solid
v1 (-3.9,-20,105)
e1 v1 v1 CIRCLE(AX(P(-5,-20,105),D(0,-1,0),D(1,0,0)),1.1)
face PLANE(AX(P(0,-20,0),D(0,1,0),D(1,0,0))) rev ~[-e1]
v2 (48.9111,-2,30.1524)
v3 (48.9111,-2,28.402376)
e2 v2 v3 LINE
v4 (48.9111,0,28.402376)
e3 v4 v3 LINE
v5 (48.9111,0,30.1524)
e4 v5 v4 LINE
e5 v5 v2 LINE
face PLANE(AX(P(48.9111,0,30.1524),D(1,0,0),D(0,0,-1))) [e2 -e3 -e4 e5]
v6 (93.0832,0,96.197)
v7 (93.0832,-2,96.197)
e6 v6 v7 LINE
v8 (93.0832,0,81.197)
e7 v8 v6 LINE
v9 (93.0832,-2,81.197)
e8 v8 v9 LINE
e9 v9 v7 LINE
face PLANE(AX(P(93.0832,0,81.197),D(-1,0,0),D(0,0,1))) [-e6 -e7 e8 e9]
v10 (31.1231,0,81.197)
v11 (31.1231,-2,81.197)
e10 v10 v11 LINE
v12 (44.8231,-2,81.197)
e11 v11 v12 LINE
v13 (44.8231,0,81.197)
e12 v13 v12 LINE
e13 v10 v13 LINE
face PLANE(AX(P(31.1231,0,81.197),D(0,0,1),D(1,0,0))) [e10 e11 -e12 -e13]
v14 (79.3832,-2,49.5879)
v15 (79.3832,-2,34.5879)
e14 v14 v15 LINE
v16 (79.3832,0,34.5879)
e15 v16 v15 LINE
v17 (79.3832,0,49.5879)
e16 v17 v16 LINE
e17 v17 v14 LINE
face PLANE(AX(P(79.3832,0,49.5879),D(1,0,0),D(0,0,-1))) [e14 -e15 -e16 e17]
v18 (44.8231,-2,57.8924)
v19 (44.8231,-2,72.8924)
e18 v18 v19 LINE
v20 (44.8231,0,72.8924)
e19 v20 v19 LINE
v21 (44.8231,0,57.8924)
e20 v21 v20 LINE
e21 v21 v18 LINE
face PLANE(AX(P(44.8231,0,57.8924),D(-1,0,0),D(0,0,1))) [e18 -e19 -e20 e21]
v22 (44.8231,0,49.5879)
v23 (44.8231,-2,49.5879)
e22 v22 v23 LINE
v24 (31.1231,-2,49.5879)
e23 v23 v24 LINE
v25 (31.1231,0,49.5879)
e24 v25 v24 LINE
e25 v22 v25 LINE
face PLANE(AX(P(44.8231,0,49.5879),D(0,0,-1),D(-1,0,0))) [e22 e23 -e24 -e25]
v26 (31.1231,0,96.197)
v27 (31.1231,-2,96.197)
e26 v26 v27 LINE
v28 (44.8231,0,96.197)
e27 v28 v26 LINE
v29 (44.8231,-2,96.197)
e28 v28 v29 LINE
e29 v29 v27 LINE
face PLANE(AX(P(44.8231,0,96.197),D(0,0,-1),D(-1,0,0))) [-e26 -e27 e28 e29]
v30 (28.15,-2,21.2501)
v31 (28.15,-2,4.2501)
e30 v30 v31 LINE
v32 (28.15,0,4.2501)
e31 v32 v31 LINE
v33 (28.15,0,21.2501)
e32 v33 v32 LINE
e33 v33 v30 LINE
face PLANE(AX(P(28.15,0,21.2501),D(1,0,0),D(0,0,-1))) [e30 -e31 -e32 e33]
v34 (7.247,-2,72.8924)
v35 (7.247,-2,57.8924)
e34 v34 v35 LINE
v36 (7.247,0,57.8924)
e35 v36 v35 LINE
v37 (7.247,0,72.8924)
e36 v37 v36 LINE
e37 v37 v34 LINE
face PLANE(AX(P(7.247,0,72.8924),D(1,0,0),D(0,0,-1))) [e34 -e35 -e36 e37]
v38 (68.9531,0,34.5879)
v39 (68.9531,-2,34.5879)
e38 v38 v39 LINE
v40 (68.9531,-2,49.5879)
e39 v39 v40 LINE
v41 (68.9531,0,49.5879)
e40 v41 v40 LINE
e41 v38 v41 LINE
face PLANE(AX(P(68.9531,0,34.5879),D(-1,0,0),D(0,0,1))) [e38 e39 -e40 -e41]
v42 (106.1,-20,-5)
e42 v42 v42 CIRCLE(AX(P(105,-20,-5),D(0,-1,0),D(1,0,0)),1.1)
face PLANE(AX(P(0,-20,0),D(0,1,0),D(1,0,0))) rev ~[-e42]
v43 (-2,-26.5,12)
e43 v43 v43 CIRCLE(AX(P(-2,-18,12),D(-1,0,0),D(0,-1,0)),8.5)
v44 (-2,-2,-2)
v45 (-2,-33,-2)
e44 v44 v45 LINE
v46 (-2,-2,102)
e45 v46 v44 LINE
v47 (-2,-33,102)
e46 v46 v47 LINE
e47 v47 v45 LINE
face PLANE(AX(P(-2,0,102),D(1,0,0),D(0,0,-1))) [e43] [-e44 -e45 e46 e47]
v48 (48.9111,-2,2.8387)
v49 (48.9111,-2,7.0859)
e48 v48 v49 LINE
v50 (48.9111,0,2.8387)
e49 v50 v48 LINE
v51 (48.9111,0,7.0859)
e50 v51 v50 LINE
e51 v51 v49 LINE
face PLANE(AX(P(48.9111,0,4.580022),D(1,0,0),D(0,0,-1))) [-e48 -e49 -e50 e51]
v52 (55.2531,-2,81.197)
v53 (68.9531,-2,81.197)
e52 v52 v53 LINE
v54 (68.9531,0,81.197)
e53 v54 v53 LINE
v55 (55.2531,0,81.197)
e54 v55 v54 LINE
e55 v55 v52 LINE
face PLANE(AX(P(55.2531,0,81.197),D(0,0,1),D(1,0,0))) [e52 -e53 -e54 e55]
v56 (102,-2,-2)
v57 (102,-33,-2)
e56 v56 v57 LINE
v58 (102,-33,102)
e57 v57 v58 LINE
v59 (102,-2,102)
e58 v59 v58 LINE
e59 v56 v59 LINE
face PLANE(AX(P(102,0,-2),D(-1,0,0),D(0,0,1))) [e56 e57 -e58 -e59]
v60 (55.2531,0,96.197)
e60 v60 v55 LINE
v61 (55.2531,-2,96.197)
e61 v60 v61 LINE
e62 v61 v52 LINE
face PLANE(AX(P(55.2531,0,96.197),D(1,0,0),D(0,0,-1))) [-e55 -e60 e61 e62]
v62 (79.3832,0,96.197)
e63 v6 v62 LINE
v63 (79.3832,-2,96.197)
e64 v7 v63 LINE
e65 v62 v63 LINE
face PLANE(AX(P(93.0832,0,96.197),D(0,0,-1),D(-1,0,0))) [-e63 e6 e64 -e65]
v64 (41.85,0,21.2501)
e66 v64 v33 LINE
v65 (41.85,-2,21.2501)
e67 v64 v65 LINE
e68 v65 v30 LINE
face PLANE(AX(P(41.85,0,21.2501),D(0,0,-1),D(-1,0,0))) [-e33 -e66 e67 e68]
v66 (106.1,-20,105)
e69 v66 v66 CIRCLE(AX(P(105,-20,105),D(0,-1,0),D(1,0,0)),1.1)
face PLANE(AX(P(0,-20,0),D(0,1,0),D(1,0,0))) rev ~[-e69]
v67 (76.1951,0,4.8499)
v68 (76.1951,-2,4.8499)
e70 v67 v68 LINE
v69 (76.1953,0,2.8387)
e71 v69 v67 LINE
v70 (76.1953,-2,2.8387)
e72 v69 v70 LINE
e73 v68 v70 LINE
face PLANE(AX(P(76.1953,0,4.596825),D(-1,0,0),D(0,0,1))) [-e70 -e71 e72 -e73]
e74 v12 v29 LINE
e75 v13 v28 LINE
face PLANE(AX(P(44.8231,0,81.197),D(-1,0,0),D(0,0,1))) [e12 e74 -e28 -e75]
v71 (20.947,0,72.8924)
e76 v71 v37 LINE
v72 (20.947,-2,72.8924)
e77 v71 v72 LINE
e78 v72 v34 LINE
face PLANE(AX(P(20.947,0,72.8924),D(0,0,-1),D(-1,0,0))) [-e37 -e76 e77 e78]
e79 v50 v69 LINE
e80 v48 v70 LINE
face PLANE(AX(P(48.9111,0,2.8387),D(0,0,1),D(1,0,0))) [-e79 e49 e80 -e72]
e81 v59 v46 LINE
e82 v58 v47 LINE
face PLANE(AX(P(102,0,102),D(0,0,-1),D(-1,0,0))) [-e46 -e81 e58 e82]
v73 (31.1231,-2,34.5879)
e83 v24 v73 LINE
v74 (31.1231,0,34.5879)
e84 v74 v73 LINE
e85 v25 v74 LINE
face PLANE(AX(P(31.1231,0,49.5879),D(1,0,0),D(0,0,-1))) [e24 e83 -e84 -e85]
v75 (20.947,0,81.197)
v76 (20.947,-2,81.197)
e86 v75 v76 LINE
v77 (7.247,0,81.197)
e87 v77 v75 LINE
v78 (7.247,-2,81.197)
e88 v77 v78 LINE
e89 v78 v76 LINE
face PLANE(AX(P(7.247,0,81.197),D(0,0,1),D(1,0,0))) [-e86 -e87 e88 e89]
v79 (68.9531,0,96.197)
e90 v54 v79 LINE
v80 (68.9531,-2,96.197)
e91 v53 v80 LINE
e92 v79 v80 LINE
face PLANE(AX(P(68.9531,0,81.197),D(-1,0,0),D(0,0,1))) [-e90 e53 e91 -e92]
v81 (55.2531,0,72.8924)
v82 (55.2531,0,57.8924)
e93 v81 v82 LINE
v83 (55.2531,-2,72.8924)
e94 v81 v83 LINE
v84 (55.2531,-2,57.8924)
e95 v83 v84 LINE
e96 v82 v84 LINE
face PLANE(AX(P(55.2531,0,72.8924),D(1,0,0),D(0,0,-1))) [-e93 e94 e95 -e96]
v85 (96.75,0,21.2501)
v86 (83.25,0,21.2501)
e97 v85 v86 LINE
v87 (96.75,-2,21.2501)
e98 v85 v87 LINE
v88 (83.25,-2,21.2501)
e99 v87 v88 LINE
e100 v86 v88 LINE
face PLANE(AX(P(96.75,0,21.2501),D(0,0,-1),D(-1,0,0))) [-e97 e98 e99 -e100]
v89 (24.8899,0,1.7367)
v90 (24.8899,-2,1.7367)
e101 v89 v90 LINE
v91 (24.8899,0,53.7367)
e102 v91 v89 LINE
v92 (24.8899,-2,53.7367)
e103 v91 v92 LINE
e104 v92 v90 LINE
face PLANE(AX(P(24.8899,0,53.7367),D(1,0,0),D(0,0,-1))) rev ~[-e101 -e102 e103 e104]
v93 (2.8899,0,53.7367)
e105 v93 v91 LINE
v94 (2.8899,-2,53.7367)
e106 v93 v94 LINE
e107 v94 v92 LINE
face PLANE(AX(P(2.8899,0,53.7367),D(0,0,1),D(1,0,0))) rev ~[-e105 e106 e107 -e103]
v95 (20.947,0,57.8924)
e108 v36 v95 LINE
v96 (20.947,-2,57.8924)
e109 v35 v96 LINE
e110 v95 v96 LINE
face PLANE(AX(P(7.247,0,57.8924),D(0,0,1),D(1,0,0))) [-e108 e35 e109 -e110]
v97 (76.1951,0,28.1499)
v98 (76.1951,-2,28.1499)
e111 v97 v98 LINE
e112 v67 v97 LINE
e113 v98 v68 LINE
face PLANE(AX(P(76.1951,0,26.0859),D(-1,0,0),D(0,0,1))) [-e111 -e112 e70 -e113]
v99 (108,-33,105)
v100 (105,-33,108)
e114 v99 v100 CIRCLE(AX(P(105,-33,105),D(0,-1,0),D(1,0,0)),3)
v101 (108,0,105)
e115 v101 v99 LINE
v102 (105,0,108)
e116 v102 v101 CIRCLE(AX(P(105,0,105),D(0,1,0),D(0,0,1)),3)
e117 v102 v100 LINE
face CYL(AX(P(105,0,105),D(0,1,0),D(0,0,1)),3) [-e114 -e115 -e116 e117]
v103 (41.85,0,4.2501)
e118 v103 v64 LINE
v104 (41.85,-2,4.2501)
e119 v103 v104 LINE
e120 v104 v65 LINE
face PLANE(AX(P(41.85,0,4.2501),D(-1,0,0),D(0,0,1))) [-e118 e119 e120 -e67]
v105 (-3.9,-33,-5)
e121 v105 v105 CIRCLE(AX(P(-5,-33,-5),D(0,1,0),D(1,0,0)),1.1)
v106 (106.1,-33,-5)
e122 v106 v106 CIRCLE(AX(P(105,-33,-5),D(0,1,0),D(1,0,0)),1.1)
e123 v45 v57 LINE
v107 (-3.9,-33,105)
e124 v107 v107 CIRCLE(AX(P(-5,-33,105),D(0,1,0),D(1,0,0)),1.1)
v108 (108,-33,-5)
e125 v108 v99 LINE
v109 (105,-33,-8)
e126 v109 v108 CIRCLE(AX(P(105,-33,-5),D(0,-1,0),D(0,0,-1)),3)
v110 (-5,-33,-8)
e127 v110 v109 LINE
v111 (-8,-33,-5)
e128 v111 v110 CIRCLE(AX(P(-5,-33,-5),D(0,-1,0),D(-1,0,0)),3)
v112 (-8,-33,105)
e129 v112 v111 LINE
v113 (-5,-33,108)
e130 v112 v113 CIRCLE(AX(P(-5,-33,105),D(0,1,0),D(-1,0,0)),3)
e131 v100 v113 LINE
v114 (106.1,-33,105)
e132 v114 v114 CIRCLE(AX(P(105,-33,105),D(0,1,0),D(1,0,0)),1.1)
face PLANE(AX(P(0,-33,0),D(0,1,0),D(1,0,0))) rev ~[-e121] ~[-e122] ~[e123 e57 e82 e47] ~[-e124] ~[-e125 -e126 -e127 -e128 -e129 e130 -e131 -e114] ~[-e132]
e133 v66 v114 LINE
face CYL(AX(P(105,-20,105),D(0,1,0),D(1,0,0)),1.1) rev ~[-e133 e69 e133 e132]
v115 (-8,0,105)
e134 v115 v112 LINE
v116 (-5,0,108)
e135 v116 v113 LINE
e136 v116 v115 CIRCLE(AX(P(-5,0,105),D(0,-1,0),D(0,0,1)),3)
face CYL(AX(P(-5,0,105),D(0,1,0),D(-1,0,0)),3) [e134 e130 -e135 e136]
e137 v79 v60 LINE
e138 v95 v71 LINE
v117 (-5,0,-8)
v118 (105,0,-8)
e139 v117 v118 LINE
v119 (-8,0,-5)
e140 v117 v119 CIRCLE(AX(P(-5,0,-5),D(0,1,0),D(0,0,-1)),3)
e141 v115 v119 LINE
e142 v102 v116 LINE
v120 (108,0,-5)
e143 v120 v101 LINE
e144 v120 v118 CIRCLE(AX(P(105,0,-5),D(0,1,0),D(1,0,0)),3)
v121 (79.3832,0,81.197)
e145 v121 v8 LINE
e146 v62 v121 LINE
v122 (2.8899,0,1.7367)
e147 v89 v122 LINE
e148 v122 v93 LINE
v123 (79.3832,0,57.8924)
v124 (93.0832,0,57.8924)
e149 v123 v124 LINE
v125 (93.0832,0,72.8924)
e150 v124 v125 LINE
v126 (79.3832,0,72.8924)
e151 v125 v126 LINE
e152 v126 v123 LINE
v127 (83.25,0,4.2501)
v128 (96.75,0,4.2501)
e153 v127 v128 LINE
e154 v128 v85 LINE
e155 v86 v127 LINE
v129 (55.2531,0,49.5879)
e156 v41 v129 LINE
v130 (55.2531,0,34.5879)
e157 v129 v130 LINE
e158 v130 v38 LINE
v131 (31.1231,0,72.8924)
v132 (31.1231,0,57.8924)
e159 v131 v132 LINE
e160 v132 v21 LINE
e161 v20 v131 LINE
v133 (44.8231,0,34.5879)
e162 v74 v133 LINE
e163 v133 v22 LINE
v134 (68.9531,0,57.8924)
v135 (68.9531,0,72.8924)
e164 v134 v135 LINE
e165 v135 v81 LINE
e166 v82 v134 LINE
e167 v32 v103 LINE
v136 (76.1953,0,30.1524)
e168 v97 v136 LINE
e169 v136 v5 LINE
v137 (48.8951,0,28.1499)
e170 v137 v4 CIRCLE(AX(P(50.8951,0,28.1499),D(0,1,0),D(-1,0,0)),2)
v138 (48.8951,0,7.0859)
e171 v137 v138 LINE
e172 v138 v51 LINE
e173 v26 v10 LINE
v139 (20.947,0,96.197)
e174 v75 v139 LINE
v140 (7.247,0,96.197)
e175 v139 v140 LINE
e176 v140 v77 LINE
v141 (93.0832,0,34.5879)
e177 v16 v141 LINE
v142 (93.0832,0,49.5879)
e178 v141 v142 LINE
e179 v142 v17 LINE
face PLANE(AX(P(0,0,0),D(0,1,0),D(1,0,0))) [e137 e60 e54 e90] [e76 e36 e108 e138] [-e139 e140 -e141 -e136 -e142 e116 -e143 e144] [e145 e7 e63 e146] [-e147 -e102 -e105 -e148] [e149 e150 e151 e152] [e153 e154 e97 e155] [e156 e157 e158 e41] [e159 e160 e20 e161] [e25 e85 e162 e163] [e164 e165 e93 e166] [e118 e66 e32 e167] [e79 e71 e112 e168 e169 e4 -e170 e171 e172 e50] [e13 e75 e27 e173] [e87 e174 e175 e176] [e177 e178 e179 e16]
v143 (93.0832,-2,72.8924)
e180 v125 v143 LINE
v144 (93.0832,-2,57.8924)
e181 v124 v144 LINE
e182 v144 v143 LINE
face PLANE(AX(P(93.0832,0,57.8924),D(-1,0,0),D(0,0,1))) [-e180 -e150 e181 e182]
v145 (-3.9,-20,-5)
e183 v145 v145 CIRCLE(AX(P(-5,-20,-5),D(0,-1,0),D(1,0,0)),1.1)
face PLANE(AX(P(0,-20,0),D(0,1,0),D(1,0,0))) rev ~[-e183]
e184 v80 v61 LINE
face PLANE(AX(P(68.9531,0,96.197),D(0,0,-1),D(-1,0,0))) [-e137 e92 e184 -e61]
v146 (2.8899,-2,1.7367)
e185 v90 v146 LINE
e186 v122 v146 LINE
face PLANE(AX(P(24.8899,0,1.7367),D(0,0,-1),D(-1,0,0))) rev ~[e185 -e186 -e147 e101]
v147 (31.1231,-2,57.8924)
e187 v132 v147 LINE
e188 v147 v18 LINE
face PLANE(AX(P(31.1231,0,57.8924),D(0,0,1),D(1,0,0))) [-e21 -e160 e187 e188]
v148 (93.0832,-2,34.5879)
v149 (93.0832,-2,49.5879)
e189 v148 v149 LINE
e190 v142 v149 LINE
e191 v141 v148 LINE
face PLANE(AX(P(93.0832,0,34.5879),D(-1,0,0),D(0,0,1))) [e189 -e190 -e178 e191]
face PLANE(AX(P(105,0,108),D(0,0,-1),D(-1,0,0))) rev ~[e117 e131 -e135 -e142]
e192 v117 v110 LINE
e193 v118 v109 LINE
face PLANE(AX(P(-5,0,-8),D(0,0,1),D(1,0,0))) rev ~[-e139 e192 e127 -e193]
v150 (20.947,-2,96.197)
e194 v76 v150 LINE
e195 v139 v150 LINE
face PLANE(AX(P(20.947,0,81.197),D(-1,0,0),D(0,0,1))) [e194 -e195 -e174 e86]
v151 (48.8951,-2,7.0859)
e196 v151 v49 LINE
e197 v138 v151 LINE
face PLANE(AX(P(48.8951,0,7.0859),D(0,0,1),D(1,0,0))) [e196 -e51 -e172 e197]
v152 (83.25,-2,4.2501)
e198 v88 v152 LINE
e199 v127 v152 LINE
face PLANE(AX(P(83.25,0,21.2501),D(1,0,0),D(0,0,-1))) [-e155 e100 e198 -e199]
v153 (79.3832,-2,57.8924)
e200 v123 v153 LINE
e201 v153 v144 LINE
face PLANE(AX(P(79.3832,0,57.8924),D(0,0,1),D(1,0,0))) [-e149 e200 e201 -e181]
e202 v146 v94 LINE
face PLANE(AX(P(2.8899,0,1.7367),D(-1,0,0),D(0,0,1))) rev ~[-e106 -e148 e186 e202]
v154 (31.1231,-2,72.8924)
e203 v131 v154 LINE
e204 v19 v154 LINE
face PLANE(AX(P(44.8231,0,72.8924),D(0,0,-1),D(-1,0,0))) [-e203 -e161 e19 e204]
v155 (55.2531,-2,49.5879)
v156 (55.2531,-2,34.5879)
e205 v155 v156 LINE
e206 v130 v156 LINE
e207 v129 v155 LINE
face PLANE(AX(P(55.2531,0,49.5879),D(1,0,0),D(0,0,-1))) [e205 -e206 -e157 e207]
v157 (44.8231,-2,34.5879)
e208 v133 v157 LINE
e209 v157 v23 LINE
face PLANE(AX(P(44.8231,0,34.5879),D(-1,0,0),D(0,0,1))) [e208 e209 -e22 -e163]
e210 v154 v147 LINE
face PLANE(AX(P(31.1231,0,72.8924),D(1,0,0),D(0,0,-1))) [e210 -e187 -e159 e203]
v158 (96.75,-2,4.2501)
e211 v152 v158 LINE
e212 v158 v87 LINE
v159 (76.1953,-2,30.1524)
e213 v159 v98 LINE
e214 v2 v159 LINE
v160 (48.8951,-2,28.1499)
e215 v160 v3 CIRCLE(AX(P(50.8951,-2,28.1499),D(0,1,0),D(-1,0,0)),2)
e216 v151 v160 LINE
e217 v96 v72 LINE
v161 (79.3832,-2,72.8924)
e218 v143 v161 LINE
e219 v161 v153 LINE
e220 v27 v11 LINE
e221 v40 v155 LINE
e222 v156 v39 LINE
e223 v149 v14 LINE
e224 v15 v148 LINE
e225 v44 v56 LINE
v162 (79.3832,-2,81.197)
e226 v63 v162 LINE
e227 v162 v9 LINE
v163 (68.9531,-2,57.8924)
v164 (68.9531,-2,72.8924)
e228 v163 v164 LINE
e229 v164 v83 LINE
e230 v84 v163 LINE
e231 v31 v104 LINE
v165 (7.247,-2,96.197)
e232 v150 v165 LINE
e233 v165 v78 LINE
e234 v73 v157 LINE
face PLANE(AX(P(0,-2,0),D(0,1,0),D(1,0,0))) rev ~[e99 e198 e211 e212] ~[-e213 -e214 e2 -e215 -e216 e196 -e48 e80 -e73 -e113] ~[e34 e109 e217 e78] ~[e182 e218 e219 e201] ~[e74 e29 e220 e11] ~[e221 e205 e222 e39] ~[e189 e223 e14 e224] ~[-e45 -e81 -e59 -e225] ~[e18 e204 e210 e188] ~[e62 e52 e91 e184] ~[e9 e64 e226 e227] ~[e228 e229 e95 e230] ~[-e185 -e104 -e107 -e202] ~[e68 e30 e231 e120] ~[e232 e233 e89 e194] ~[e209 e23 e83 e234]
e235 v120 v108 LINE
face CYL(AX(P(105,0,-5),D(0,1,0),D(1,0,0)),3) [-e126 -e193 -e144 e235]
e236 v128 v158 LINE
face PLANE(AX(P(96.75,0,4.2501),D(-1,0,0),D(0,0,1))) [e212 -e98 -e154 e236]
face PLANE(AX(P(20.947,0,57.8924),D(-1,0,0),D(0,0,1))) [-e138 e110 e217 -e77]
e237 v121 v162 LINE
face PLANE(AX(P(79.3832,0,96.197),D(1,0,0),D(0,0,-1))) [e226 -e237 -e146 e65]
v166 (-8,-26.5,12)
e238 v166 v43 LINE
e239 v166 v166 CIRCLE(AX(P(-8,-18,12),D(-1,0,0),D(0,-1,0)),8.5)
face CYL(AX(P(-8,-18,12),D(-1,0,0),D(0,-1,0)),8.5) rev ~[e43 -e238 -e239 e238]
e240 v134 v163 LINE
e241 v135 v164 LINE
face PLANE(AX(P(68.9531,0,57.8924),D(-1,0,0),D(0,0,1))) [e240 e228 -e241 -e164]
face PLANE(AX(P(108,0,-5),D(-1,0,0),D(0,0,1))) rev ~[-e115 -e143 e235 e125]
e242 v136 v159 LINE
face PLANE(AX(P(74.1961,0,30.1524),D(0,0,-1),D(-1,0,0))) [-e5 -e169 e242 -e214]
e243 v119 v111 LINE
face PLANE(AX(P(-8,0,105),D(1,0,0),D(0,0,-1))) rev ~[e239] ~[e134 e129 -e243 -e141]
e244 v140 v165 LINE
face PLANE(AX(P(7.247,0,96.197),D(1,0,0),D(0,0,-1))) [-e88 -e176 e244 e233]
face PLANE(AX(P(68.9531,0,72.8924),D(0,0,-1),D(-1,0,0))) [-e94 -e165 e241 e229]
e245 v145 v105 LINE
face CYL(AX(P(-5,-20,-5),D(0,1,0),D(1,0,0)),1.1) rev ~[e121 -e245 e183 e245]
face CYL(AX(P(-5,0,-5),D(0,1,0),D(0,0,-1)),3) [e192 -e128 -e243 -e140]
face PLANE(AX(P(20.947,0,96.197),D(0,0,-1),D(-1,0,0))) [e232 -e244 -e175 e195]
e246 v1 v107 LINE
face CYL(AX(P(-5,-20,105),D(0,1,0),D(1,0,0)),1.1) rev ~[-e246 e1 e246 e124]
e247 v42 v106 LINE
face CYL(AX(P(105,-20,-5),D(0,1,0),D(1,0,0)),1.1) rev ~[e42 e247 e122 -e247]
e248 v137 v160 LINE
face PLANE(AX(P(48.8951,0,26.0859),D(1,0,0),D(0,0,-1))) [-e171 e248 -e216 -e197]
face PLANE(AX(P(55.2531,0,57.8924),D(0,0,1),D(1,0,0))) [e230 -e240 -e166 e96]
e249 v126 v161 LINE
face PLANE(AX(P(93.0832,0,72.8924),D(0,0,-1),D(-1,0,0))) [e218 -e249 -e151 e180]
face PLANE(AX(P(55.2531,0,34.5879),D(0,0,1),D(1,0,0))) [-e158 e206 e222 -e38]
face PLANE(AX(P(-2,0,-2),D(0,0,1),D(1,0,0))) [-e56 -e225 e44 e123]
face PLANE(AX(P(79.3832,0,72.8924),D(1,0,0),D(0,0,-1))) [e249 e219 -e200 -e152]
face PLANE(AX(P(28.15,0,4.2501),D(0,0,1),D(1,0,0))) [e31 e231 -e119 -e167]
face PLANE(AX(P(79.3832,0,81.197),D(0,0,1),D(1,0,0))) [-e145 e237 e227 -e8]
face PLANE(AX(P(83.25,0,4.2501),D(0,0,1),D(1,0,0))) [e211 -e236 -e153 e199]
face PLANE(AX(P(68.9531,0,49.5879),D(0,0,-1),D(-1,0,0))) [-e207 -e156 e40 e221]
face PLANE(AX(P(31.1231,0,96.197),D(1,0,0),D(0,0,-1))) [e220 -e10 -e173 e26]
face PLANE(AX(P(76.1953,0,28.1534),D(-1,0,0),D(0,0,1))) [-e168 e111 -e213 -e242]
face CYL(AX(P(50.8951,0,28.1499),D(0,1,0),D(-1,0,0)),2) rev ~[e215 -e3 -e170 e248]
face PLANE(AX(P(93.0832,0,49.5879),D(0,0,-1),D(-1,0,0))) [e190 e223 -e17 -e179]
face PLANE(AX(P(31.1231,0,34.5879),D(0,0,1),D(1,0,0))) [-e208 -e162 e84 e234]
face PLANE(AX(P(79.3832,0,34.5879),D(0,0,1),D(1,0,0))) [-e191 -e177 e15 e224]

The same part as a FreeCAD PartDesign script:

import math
import FreeCAD as App
import Part
import Sketcher


def add_polygon(sketch, points):
    """Adds a closed chain of lines whose ends are joined by coincident constraints."""
    first, n = sketch.GeometryCount, len(points)
    for a, b in zip(points, points[1:] + points[:1]):
        sketch.addGeometry(Part.LineSegment(App.Vector(*a, 0), App.Vector(*b, 0)), False)
    for i in range(n):
        sketch.addConstraint(Sketcher.Constraint("Coincident", first + i, 2, first + (i + 1) % n, 1))

doc = App.newDocument("Part")
body = doc.addObject("PartDesign::Body", "Body")

sketch1 = body.newObject("Sketcher::SketchObject", "Sketch")
sketch1.AttachmentSupport = (doc.getObject("XZ_Plane"), [""])
sketch1.MapMode = "FlatFace"
add_polygon(sketch1, [(-2, -2), (-2, 102), (102, 102), (102, -2)])
add_polygon(sketch1, [(20.947, 81.197), (20.947, 96.197), (7.247, 96.197), (7.247, 81.197)])
add_polygon(sketch1, [(44.823, 81.197), (44.823, 96.197), (31.123, 96.197), (31.123, 81.197)])
add_polygon(sketch1, [(20.947, 57.892), (20.947, 72.892), (7.247, 72.892), (7.247, 57.892)])
add_polygon(sketch1, [(44.823, 57.892), (44.823, 72.892), (31.123, 72.892), (31.123, 57.892)])
add_polygon(sketch1, [(68.953, 81.197), (68.953, 96.197), (55.253, 96.197), (55.253, 81.197)])
add_polygon(sketch1, [(93.083, 81.197), (93.083, 96.197), (79.383, 96.197), (79.383, 81.197)])
add_polygon(sketch1, [(68.953, 57.892), (68.953, 72.892), (55.253, 72.892), (55.253, 57.892)])
add_polygon(sketch1, [(93.083, 57.892), (93.083, 72.892), (79.383, 72.892), (79.383, 57.892)])
add_polygon(sketch1, [(2.89, 1.737), (24.89, 1.737), (24.89, 53.737), (2.89, 53.737)])
add_polygon(sketch1, [(44.823, 34.588), (44.823, 49.588), (31.123, 49.588), (31.123, 34.588)])
add_polygon(sketch1, [(41.85, 4.25), (41.85, 21.25), (28.15, 21.25), (28.15, 4.25)])
add_polygon(sketch1, [(68.953, 34.588), (68.953, 49.588), (55.253, 49.588), (55.253, 34.588)])
add_polygon(sketch1, [(93.083, 34.588), (93.083, 49.588), (79.383, 49.588), (79.383, 34.588)])
sketch1.addGeometry(Part.ArcOfCircle(Part.Circle(App.Vector(50.895, 28.15, 0), App.Vector(0, 0, 1), 2), math.radians(172.75), math.radians(180)), False)
sketch1.addGeometry(Part.LineSegment(App.Vector(48.895, 28.15, 0), App.Vector(48.895, 7.086, 0)), False)
sketch1.addGeometry(Part.LineSegment(App.Vector(48.895, 7.086, 0), App.Vector(48.911, 7.086, 0)), False)
sketch1.addGeometry(Part.LineSegment(App.Vector(48.911, 7.086, 0), App.Vector(48.911, 2.839, 0)), False)
sketch1.addGeometry(Part.LineSegment(App.Vector(48.911, 2.839, 0), App.Vector(76.195, 2.839, 0)), False)
sketch1.addGeometry(Part.LineSegment(App.Vector(76.195, 2.839, 0), App.Vector(76.195, 4.85, 0)), False)
sketch1.addGeometry(Part.LineSegment(App.Vector(76.195, 4.85, 0), App.Vector(76.195, 28.15, 0)), False)
sketch1.addGeometry(Part.LineSegment(App.Vector(76.195, 28.15, 0), App.Vector(76.195, 30.152, 0)), False)
sketch1.addGeometry(Part.LineSegment(App.Vector(76.195, 30.152, 0), App.Vector(48.911, 30.152, 0)), False)
sketch1.addGeometry(Part.LineSegment(App.Vector(48.911, 30.152, 0), App.Vector(48.911, 28.402, 0)), False)
add_polygon(sketch1, [(96.75, 4.25), (96.75, 21.25), (83.25, 21.25), (83.25, 4.25)])
sketch1.addConstraint([
    Sketcher.Constraint("Tangent", 56, 2, 57, 1),
    Sketcher.Constraint("Coincident", 57, 2, 58, 1),
    Sketcher.Constraint("Coincident", 58, 2, 59, 1),
    Sketcher.Constraint("Coincident", 59, 2, 60, 1),
    Sketcher.Constraint("Coincident", 60, 2, 61, 1),
    Sketcher.Constraint("Coincident", 61, 2, 62, 1),
    Sketcher.Constraint("Coincident", 62, 2, 63, 1),
    Sketcher.Constraint("Coincident", 63, 2, 64, 1),
    Sketcher.Constraint("Coincident", 64, 2, 65, 1),
    Sketcher.Constraint("Coincident", 65, 2, 56, 1),
    Sketcher.Constraint("Vertical", 0),
    Sketcher.Constraint("Horizontal", 1),
    Sketcher.Constraint("Vertical", 2),
    Sketcher.Constraint("Horizontal", 3),
    Sketcher.Constraint("Vertical", 4),
    Sketcher.Constraint("Horizontal", 5),
    Sketcher.Constraint("Vertical", 6),
    Sketcher.Constraint("Horizontal", 7),
    Sketcher.Constraint("Vertical", 8),
    Sketcher.Constraint("Horizontal", 9),
    Sketcher.Constraint("Vertical", 10),
    Sketcher.Constraint("Horizontal", 11),
    Sketcher.Constraint("Vertical", 12),
    Sketcher.Constraint("Horizontal", 13),
    Sketcher.Constraint("Vertical", 14),
    Sketcher.Constraint("Horizontal", 15),
    Sketcher.Constraint("Vertical", 16),
    Sketcher.Constraint("Horizontal", 17),
    Sketcher.Constraint("Vertical", 18),
    Sketcher.Constraint("Horizontal", 19),
    Sketcher.Constraint("Vertical", 20),
    Sketcher.Constraint("Horizontal", 21),
    Sketcher.Constraint("Vertical", 22),
    Sketcher.Constraint("Horizontal", 23),
    Sketcher.Constraint("Vertical", 24),
    Sketcher.Constraint("Horizontal", 25),
    Sketcher.Constraint("Vertical", 26),
    Sketcher.Constraint("Horizontal", 27),
    Sketcher.Constraint("Vertical", 28),
    Sketcher.Constraint("Horizontal", 29),
    Sketcher.Constraint("Vertical", 30),
    Sketcher.Constraint("Horizontal", 31),
    Sketcher.Constraint("Vertical", 32),
    Sketcher.Constraint("Horizontal", 33),
    Sketcher.Constraint("Vertical", 34),
    Sketcher.Constraint("Horizontal", 35),
    Sketcher.Constraint("Horizontal", 36),
    Sketcher.Constraint("Vertical", 37),
    Sketcher.Constraint("Horizontal", 38),
    Sketcher.Constraint("Vertical", 39),
    Sketcher.Constraint("Vertical", 40),
    Sketcher.Constraint("Horizontal", 41),
    Sketcher.Constraint("Vertical", 42),
    Sketcher.Constraint("Horizontal", 43),
    Sketcher.Constraint("Vertical", 44),
    Sketcher.Constraint("Horizontal", 45),
    Sketcher.Constraint("Vertical", 46),
    Sketcher.Constraint("Horizontal", 47),
    Sketcher.Constraint("Vertical", 48),
    Sketcher.Constraint("Horizontal", 49),
    Sketcher.Constraint("Vertical", 50),
    Sketcher.Constraint("Horizontal", 51),
    Sketcher.Constraint("Vertical", 52),
    Sketcher.Constraint("Horizontal", 53),
    Sketcher.Constraint("Vertical", 54),
    Sketcher.Constraint("Horizontal", 55),
    Sketcher.Constraint("Vertical", 57),
    Sketcher.Constraint("Horizontal", 58),
    Sketcher.Constraint("Vertical", 59),
    Sketcher.Constraint("Horizontal", 60),
    Sketcher.Constraint("Vertical", 62),
    Sketcher.Constraint("Horizontal", 64),
    Sketcher.Constraint("Vertical", 65),
    Sketcher.Constraint("Vertical", 66),
    Sketcher.Constraint("Horizontal", 67),
    Sketcher.Constraint("Vertical", 68),
    Sketcher.Constraint("Horizontal", 69),
    Sketcher.Constraint("Parallel", 61, 63),
    Sketcher.Constraint("Horizontal", 5, 2, 8, 2),
    Sketcher.Constraint("Horizontal", 7, 2, 10, 2),
    Sketcher.Constraint("Horizontal", 13, 2, 16, 2),
    Sketcher.Constraint("Horizontal", 15, 2, 18, 2),
    Sketcher.Constraint("Horizontal", 9, 2, 20, 2),
    Sketcher.Constraint("Horizontal", 11, 2, 22, 2),
    Sketcher.Constraint("Horizontal", 21, 2, 24, 2),
    Sketcher.Constraint("Horizontal", 23, 2, 26, 2),
    Sketcher.Constraint("Horizontal", 17, 2, 28, 2),
    Sketcher.Constraint("Horizontal", 19, 2, 30, 2),
    Sketcher.Constraint("Horizontal", 29, 2, 32, 2),
    Sketcher.Constraint("Horizontal", 31, 2, 34, 2),
    Sketcher.Constraint("Horizontal", 41, 2, 48, 2),
    Sketcher.Constraint("Horizontal", 43, 2, 50, 2),
    Sketcher.Constraint("Horizontal", 49, 2, 52, 2),
    Sketcher.Constraint("Horizontal", 51, 2, 54, 2),
    Sketcher.Constraint("Horizontal", 56, 2, 62, 2),
    Sketcher.Constraint("Horizontal", 45, 2, 66, 2),
    Sketcher.Constraint("Horizontal", 47, 2, 68, 2),
    Sketcher.Constraint("Vertical", 7, 2, 12, 2),
    Sketcher.Constraint("Vertical", 6, 2, 13, 2),
    Sketcher.Constraint("Vertical", 11, 2, 16, 2),
    Sketcher.Constraint("Vertical", 10, 2, 17, 2),
    Sketcher.Constraint("Vertical", 23, 2, 28, 2),
    Sketcher.Constraint("Vertical", 22, 2, 29, 2),
    Sketcher.Constraint("Vertical", 27, 2, 32, 2),
    Sketcher.Constraint("Vertical", 26, 2, 33, 2),
    Sketcher.Constraint("Vertical", 19, 2, 40, 2),
    Sketcher.Constraint("Vertical", 18, 2, 41, 2),
    Sketcher.Constraint("Vertical", 31, 2, 48, 2),
    Sketcher.Constraint("Vertical", 30, 2, 49, 2),
    Sketcher.Constraint("Vertical", 35, 2, 52, 2),
    Sketcher.Constraint("Vertical", 34, 2, 53, 2),
    Sketcher.Constraint("Vertical", 60, 2, 63, 2),
    Sketcher.Constraint("Vertical", 59, 2, 64, 2),
    Sketcher.Constraint("Equal", 7, 9),
    Sketcher.Constraint("Equal", 19, 21),
    Sketcher.Constraint("Equal", 23, 25),
    Sketcher.Constraint("Equal", 43, 45),
    Sketcher.Constraint("Equal", 3, 0),
    Sketcher.Constraint("Equal", 10, 12),
    Sketcher.Constraint("Equal", 34, 40),
    Sketcher.Constraint("DistanceY", 4, 1, 4, 2, 15.0),
    Sketcher.Constraint("DistanceY", 44, 1, 44, 2, 17.0),
    Sketcher.Constraint("DistanceX", 5, 2, 5, 1, 13.7),
    Sketcher.Constraint("DistanceX", 67, 2, 67, 1, 13.5),
    Sketcher.Constraint("Radius", 56, 2.0),
    Sketcher.Constraint("DistanceX", 1, 1, 1, 2, 104.0),
    Sketcher.Constraint("DistanceX", 36, 1, 36, 2, 22.0),
    Sketcher.Constraint("DistanceY", 37, 1, 37, 2, 52.0),
    Sketcher.Constraint("DistanceY", 62, 1, 62, 2, 23.3),
    Sketcher.Constraint("DistanceX", 0, 2, -1, 1, 2.0),
    Sketcher.Constraint("DistanceY", -1, 1, 0, 2, 102.0),
    Sketcher.Constraint("DistanceY", 65, 2, 65, 1, 1.75),
    Sketcher.Constraint("DistanceX", 58, 1, 58, 2, 0.016),
    Sketcher.Constraint("DistanceY", 57, 2, 57, 1, 21.064),
    Sketcher.Constraint("DistanceY", -1, 1, 56, 3, 28.15),
    Sketcher.Constraint("DistanceX", -1, 1, 36, 2, 24.89),
    Sketcher.Constraint("DistanceX", -1, 1, 44, 2, 41.85),
    Sketcher.Constraint("DistanceY", -1, 1, 44, 2, 21.25),
    Sketcher.Constraint("DistanceX", -1, 1, 66, 2, 96.75),
    Sketcher.Constraint("DistanceX", 60, 1, 60, 2, 27.2842),
    Sketcher.Constraint("DistanceY", 59, 2, 59, 1, 4.2472),
    Sketcher.Constraint("DistanceX", -1, 1, 56, 3, 50.895),
    Sketcher.Constraint("DistanceX", -1, 1, 4, 2, 20.947),
    Sketcher.Constraint("DistanceY", -1, 1, 4, 2, 96.197),
    Sketcher.Constraint("DistanceX", -1, 1, 8, 2, 44.823),
    Sketcher.Constraint("DistanceX", -1, 1, 20, 2, 68.953),
    Sketcher.Constraint("DistanceY", -1, 1, 40, 2, 49.588),
    Sketcher.Constraint("DistanceY", -1, 1, 12, 2, 72.8924),
    Sketcher.Constraint("DistanceX", -1, 1, 24, 2, 93.0832),
    Sketcher.Constraint("DistanceY", -1, 1, 36, 2, 1.7367),
])
pad1 = body.newObject("PartDesign::Pad", "Pad")
pad1.Profile = sketch1
pad1.Length = 2

sketch2 = body.newObject("Sketcher::SketchObject", "Sketch001")
sketch2.AttachmentSupport = (doc.getObject("XZ_Plane"), [""])
sketch2.MapMode = "FlatFace"
sketch2.addGeometry(Part.ArcOfCircle(Part.Circle(App.Vector(-5, 105, 0), App.Vector(0, 0, 1), 3), math.radians(90), math.radians(180)), False)
sketch2.addGeometry(Part.LineSegment(App.Vector(-5, 108, 0), App.Vector(105, 108, 0)), False)
sketch2.addGeometry(Part.ArcOfCircle(Part.Circle(App.Vector(105, 105, 0), App.Vector(0, 0, 1), 3), math.radians(0), math.radians(90)), False)
sketch2.addGeometry(Part.LineSegment(App.Vector(108, 105, 0), App.Vector(108, -5, 0)), False)
sketch2.addGeometry(Part.ArcOfCircle(Part.Circle(App.Vector(105, -5, 0), App.Vector(0, 0, 1), 3), math.radians(-90), math.radians(0)), False)
sketch2.addGeometry(Part.LineSegment(App.Vector(105, -8, 0), App.Vector(-5, -8, 0)), False)
sketch2.addGeometry(Part.ArcOfCircle(Part.Circle(App.Vector(-5, -5, 0), App.Vector(0, 0, 1), 3), math.radians(180), math.radians(270)), False)
sketch2.addGeometry(Part.LineSegment(App.Vector(-8, -5, 0), App.Vector(-8, 105, 0)), False)
add_polygon(sketch2, [(-2, 102), (-2, -2), (102, -2), (102, 102)])
sketch2.addConstraint([
    Sketcher.Constraint("Tangent", 0, 1, 1, 1),
    Sketcher.Constraint("Tangent", 1, 2, 2, 2),
    Sketcher.Constraint("Tangent", 2, 1, 3, 1),
    Sketcher.Constraint("Tangent", 3, 2, 4, 2),
    Sketcher.Constraint("Tangent", 4, 1, 5, 1),
    Sketcher.Constraint("Tangent", 5, 2, 6, 2),
    Sketcher.Constraint("Tangent", 6, 1, 7, 1),
    Sketcher.Constraint("Tangent", 7, 2, 0, 2),
    Sketcher.Constraint("Horizontal", 1),
    Sketcher.Constraint("Vertical", 3),
    Sketcher.Constraint("Horizontal", 5),
    Sketcher.Constraint("Vertical", 7),
    Sketcher.Constraint("Vertical", 8),
    Sketcher.Constraint("Horizontal", 9),
    Sketcher.Constraint("Vertical", 10),
    Sketcher.Constraint("Horizontal", 11),
    Sketcher.Constraint("Equal", 0, 2),
    Sketcher.Constraint("Equal", 2, 4),
    Sketcher.Constraint("Equal", 4, 6),
    Sketcher.Constraint("Equal", 5, 3),
    Sketcher.Constraint("Equal", 11, 8),
    Sketcher.Constraint("Radius", 0, 3.0),
    Sketcher.Constraint("DistanceX", 6, 3, 8, 2, 3.0),
    Sketcher.Constraint("DistanceY", 6, 3, 8, 2, 3.0),
    Sketcher.Constraint("DistanceX", 9, 2, 4, 3, 3.0),
    Sketcher.Constraint("DistanceX", 1, 1, 1, 2, 110.0),
    Sketcher.Constraint("DistanceX", 0, 3, -1, 1, 5.0),
    Sketcher.Constraint("DistanceY", -1, 1, 0, 3, 105.0),
])
pad2 = body.newObject("PartDesign::Pad", "Pad001")
pad2.Profile = sketch2
pad2.Length = 33

sketch3 = body.newObject("Sketcher::SketchObject", "Sketch002")
sketch3.AttachmentSupport = (doc.getObject("XZ_Plane"), [""])
sketch3.MapMode = "FlatFace"
sketch3.AttachmentOffset = App.Placement(App.Vector(0, 0, 20), App.Rotation())
sketch3.addGeometry([
    Part.Circle(App.Vector(-5, 105, 0), App.Vector(0, 0, 1), 1.1),
    Part.Circle(App.Vector(-5, -5, 0), App.Vector(0, 0, 1), 1.1),
    Part.Circle(App.Vector(105, 105, 0), App.Vector(0, 0, 1), 1.1),
    Part.Circle(App.Vector(105, -5, 0), App.Vector(0, 0, 1), 1.1),
], False)
sketch3.addConstraint([
    Sketcher.Constraint("Equal", 0, 1),
    Sketcher.Constraint("Equal", 1, 2),
    Sketcher.Constraint("Equal", 2, 3),
    Sketcher.Constraint("Horizontal", 0, 3, 2, 3),
    Sketcher.Constraint("Horizontal", 1, 3, 3, 3),
    Sketcher.Constraint("Vertical", 0, 3, 1, 3),
    Sketcher.Constraint("Vertical", 2, 3, 3, 3),
    Sketcher.Constraint("Diameter", 0, 2.2),
    Sketcher.Constraint("DistanceX", 0, 3, -1, 1, 5.0),
    Sketcher.Constraint("DistanceY", -1, 1, 0, 3, 105.0),
    Sketcher.Constraint("DistanceY", 1, 3, -1, 1, 5.0),
    Sketcher.Constraint("DistanceX", -1, 1, 2, 3, 105.0),
])
pocket1 = body.newObject("PartDesign::Pocket", "Pocket")
pocket1.Profile = sketch3
pocket1.Length = 40
pocket1.Reversed = True

sketch4 = body.newObject("Sketcher::SketchObject", "Sketch003")
sketch4.AttachmentSupport = (doc.getObject("YZ_Plane"), [""])
sketch4.MapMode = "FlatFace"
sketch4.AttachmentOffset = App.Placement(App.Vector(0, 0, -8), App.Rotation())
sketch4.addGeometry(Part.Circle(App.Vector(-18, 12, 0), App.Vector(0, 0, 1), 8), False)
sketch4.addConstraint([
    Sketcher.Constraint("Diameter", 0, 17.0),
    Sketcher.Constraint("DistanceX", 0, 3, -1, 1, 18.0),
    Sketcher.Constraint("DistanceY", -1, 1, 0, 3, 12.0),
])
pocket2 = body.newObject("PartDesign::Pocket", "Pocket001")
pocket2.Profile = sketch4
pocket2.Length = 13
pocket2.Reversed = True

doc.recompute()
